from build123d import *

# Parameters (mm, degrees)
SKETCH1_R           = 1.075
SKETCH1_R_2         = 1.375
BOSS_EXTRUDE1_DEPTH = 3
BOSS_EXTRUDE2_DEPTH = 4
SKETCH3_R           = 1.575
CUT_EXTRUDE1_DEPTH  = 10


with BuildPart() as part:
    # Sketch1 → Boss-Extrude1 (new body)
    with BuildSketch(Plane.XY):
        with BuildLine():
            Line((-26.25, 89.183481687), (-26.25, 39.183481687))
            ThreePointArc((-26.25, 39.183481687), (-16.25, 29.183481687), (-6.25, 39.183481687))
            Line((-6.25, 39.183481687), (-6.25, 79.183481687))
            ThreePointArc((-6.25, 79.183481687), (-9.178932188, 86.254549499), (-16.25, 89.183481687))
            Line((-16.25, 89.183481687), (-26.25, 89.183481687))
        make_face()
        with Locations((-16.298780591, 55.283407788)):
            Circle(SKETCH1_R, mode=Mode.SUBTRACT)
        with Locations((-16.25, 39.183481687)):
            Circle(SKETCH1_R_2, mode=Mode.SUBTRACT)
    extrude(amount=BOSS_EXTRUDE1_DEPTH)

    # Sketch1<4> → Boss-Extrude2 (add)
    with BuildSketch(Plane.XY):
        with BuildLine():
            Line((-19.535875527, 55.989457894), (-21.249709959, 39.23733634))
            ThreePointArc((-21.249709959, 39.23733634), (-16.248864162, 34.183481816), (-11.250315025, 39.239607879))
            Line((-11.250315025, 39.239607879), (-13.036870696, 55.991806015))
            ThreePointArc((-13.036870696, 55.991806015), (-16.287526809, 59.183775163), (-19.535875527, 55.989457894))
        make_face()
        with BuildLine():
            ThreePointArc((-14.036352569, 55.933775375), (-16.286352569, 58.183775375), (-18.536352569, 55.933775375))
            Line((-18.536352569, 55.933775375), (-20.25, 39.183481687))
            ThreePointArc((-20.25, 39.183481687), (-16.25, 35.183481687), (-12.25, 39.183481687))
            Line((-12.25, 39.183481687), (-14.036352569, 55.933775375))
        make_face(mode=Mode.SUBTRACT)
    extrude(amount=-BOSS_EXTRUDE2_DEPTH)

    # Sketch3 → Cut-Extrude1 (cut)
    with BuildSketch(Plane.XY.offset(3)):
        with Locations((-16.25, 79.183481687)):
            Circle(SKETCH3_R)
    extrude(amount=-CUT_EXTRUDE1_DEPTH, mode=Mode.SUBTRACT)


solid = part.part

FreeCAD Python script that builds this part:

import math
import FreeCAD as App
import Part
import Sketcher

doc = App.newDocument("Part")
body = doc.addObject("PartDesign::Body", "Body")

# Sketch on XY plane
sketch1 = body.newObject("Sketcher::SketchObject", "Sketch")
sketch1.AttachmentSupport = (doc.getObject("XY_Plane"), [""])
sketch1.MapMode = "FlatFace"
sketch1.addGeometry([
    Part.LineSegment(App.Vector(-26.2, 89.2, 0), App.Vector(-26.2, 39.2, 0)),  # 0
    Part.ArcOfCircle(Part.Circle(App.Vector(-16.2, 39.2, 0), App.Vector(0, 0, 1), 10), math.radians(180), math.radians(360)),  # 1
    Part.LineSegment(App.Vector(-6.2, 39.2, 0), App.Vector(-6.2, 79.2, 0)),  # 2
    Part.ArcOfCircle(Part.Circle(App.Vector(-16.2, 79.2, 0), App.Vector(0, 0, 1), 10), math.radians(0), math.radians(90)),  # 3
    Part.LineSegment(App.Vector(-16.2, 89.2, 0), App.Vector(-26.2, 89.2, 0)),  # 4
    Part.Circle(App.Vector(-16.2, 39.2, 0), App.Vector(0, 0, 1), 1.4),  # 5
    Part.Circle(App.Vector(-16.3, 55.3, 0), App.Vector(0, 0, 1), 1.1),  # 6
], False)
sketch1.addConstraint([
    Sketcher.Constraint("Tangent", 0, 2, 1, 1),
    Sketcher.Constraint("Tangent", 1, 2, 2, 1),
    Sketcher.Constraint("Tangent", 2, 2, 3, 1),
    Sketcher.Constraint("Tangent", 3, 2, 4, 1),
    Sketcher.Constraint("Coincident", 4, 2, 0, 1),
    Sketcher.Constraint("Vertical", 0),
    Sketcher.Constraint("Vertical", 2),
    Sketcher.Constraint("Horizontal", 4),
    Sketcher.Constraint("Coincident", 5, 3, 1, 3),
    Sketcher.Constraint("Equal", 1, 3),
    Sketcher.Constraint("Radius", 1, 10.0),
    Sketcher.Constraint("Diameter", 5, 2.75),
    Sketcher.Constraint("Diameter", 6, 2.15),
    Sketcher.Constraint("DistanceY", 0, 2, 0, 1, 50.0),
    Sketcher.Constraint("DistanceX", 1, 3, -1, 1, 16.25),
    Sketcher.Constraint("DistanceY", -1, 1, 1, 3, 39.183482),
    Sketcher.Constraint("DistanceX", 6, 3, -1, 1, 16.298781),
    Sketcher.Constraint("DistanceY", -1, 1, 6, 3, 55.283408),
])
pad1 = body.newObject("PartDesign::Pad", "Pad")
pad1.Profile = sketch1
pad1.Length = 3

# Sketch on XY plane
sketch2 = body.newObject("Sketcher::SketchObject", "Sketch001")
sketch2.AttachmentSupport = (doc.getObject("XY_Plane"), [""])
sketch2.MapMode = "FlatFace"
sketch2.addGeometry([
    Part.LineSegment(App.Vector(-19.535876, 55.989458, 0), App.Vector(-21.24971, 39.237336, 0)),  # 0
    Part.ArcOfCircle(Part.Circle(App.Vector(-16.25, 39.183482, 0), App.Vector(0, 0, 1), 5), math.radians(179.382859), math.radians(360.643172)),  # 1
    Part.LineSegment(App.Vector(-11.250315, 39.239608, 0), App.Vector(-13.036871, 55.991806, 0)),  # 2
    Part.ArcOfCircle(Part.Circle(App.Vector(-16.286353, 55.933775, 0), App.Vector(0, 0, 1), 3.25), math.radians(1.023104), math.radians(179.018299)),  # 3
    Part.ArcOfCircle(Part.Circle(App.Vector(-16.286353, 55.933775, 0), App.Vector(0, 0, 1), 2.25), math.radians(0), math.radians(180)),  # 4
    Part.LineSegment(App.Vector(-14.036353, 55.933775, 0), App.Vector(-12.25, 39.183482, 0)),  # 5
    Part.ArcOfCircle(Part.Circle(App.Vector(-16.25, 39.183482, 0), App.Vector(0, 0, 1), 4), math.radians(180), math.radians(360)),  # 6
    Part.LineSegment(App.Vector(-20.25, 39.183482, 0), App.Vector(-18.536353, 55.933775, 0)),  # 7
], False)
sketch2.addConstraint([
    Sketcher.Constraint("Coincident", 0, 2, 1, 1),
    Sketcher.Constraint("Coincident", 1, 2, 2, 1),
    Sketcher.Constraint("Coincident", 2, 2, 3, 1),
    Sketcher.Constraint("Coincident", 3, 2, 0, 1),
    Sketcher.Constraint("Coincident", 4, 1, 5, 1),
    Sketcher.Constraint("Coincident", 5, 2, 6, 2),
    Sketcher.Constraint("Coincident", 6, 1, 7, 1),
    Sketcher.Constraint("Coincident", 7, 2, 4, 2),
    Sketcher.Constraint("Coincident", 4, 3, 3, 3),
    Sketcher.Constraint("Coincident", 6, 3, 1, 3),
    Sketcher.Constraint("Parallel", 2, 5),
    Sketcher.Constraint("Parallel", 0, 7),
    Sketcher.Constraint("Horizontal", 3, 3, 4, 1),
    Sketcher.Constraint("Horizontal", 6, 3, 5, 2),
    Sketcher.Constraint("Horizontal", 5, 2, 6, 1),
    Sketcher.Constraint("Horizontal", 4, 1, 7, 2),
    Sketcher.Constraint("Radius", 1, 5.0),
    Sketcher.Constraint("Radius", 6, 4.0),
    Sketcher.Constraint("Radius", 3, 3.25),
    Sketcher.Constraint("Radius", 4, 2.25),
    Sketcher.Constraint("DistanceX", 1, 3, -1, 1, 16.25),
    Sketcher.Constraint("DistanceY", 1, 2, 2, 2, 16.752198),
    Sketcher.Constraint("Distance", 0, 16.839561),
    Sketcher.Constraint("Distance", 5, 16.845278),
    Sketcher.Constraint("DistanceY", -1, 1, 1, 3, 39.183482),
    Sketcher.Constraint("DistanceX", 0, 2, -1, 1, 21.24971),
])
pad2 = body.newObject("PartDesign::Pad", "Pad001")
pad2.Profile = sketch2
pad2.Length = 4
pad2.Reversed = True

# Sketch on XY plane
sketch3 = body.newObject("Sketcher::SketchObject", "Sketch002")
sketch3.AttachmentSupport = (doc.getObject("XY_Plane"), [""])
sketch3.MapMode = "FlatFace"
sketch3.AttachmentOffset = App.Placement(App.Vector(0, 0, 3), App.Rotation())
sketch3.addGeometry(Part.Circle(App.Vector(-16.2, 79.2, 0), App.Vector(0, 0, 1), 1.6), False)
sketch3.addConstraint([
    Sketcher.Constraint("Diameter", 0, 3.15),
    Sketcher.Constraint("DistanceX", 0, 3, -1, 1, 16.25),
    Sketcher.Constraint("DistanceY", -1, 1, 0, 3, 79.183482),
])
pocket1 = body.newObject("PartDesign::Pocket", "Pocket")
pocket1.Profile = sketch3
pocket1.Length = 10

doc.recompute()
